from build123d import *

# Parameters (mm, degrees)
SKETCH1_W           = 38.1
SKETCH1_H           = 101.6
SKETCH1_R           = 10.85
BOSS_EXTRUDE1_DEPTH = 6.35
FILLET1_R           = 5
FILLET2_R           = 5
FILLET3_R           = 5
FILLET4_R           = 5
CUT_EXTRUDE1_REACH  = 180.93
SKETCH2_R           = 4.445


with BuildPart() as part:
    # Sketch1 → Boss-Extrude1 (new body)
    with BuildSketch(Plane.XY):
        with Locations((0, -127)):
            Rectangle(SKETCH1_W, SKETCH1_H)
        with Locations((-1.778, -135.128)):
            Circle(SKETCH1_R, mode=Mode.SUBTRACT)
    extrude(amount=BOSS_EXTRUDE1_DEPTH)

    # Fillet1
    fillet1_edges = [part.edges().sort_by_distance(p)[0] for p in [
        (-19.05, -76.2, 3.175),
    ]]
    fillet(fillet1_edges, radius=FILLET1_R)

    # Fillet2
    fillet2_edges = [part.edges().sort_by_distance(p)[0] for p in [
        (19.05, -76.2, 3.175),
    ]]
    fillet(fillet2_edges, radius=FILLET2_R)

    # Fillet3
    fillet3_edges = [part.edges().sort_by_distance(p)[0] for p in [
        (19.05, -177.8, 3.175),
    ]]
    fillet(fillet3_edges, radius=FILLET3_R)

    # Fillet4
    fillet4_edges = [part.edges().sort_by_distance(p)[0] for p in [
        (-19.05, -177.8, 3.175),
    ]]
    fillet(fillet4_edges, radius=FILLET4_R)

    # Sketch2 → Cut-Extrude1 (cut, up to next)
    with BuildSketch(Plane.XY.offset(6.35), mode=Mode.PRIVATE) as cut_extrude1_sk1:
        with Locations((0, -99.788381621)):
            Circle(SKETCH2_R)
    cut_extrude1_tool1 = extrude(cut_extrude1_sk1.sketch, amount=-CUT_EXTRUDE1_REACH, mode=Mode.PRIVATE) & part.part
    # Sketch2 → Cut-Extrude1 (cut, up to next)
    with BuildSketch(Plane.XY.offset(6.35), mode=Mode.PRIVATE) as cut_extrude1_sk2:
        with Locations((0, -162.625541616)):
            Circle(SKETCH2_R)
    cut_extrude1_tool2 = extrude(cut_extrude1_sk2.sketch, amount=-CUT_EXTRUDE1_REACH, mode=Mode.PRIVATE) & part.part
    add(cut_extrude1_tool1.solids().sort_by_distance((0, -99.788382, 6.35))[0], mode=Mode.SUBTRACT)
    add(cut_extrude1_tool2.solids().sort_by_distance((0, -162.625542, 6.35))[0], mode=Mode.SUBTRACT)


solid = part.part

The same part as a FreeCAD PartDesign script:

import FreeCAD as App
import Part
import Sketcher
Q = App.Units.Quantity


def edges_at(feature, points):
    """Names of the edges that pass closest to the given points."""
    edges = feature.Shape.Edges
    near = lambda p: min(range(len(edges)), key=lambda i: edges[i].distToShape(Part.Vertex(*p))[0])
    return sorted({f"Edge{near(p) + 1}" for p in points})

doc = App.newDocument("Part")
body = doc.addObject("PartDesign::Body", "Body")

# Sketch on XY plane
sketch1 = body.newObject("Sketcher::SketchObject", "Sketch")
sketch1.AttachmentSupport = (doc.getObject("XY_Plane"), [""])
sketch1.MapMode = "FlatFace"
sketch1.addGeometry(Part.LineSegment(App.Vector(-19, -76, 0), App.Vector(-19, -178, 0)), False)
sketch1.addGeometry(Part.LineSegment(App.Vector(-19, -178, 0), App.Vector(19, -178, 0)), False)
sketch1.addGeometry(Part.LineSegment(App.Vector(19, -178, 0), App.Vector(19, -76, 0)), False)
sketch1.addGeometry(Part.LineSegment(App.Vector(19, -76, 0), App.Vector(-19, -76, 0)), False)
sketch1.addGeometry(Part.Circle(App.Vector(-2, -135, 0), App.Vector(0, 0, 1), 11), False)
sketch1.addConstraint(Sketcher.Constraint("Coincident", 0, 2, 1, 1))
sketch1.addConstraint(Sketcher.Constraint("Coincident", 1, 2, 2, 1))
sketch1.addConstraint(Sketcher.Constraint("Coincident", 2, 2, 3, 1))
sketch1.addConstraint(Sketcher.Constraint("Coincident", 3, 2, 0, 1))
sketch1.addConstraint(Sketcher.Constraint("Vertical", 0))
sketch1.addConstraint(Sketcher.Constraint("Horizontal", 1))
sketch1.addConstraint(Sketcher.Constraint("Vertical", 2))
sketch1.addConstraint(Sketcher.Constraint("Horizontal", 3))
sketch1.addConstraint(Sketcher.Constraint("DistanceY", 0, 2, 0, 1, Q("4 in")))
sketch1.addConstraint(Sketcher.Constraint("DistanceX", 1, 1, 1, 2, Q("1.5 in")))
sketch1.addConstraint(Sketcher.Constraint("DistanceY", 0, 2, -1, 1, Q("7 in")))
sketch1.addConstraint(Sketcher.Constraint("Diameter", 4, 21.7))
sketch1.addConstraint(Sketcher.Constraint("DistanceX", 4, 3, -1, 1, Q("0.07 in")))
sketch1.addConstraint(Sketcher.Constraint("DistanceY", 4, 3, -1, 1, Q("5.32 in")))
sketch1.addConstraint(Sketcher.Constraint("DistanceX", 0, 2, -1, 1, Q("0.75 in")))
pad1 = body.newObject("PartDesign::Pad", "Pad")
pad1.Profile = sketch1
pad1.Length = Q("0.25 in")
doc.recompute()

fillet = body.newObject("PartDesign::Fillet", "Fillet")
fillet.Base = (pad1, edges_at(pad1, [(-19.05, -76.2, 3.175)]))
fillet.Radius = 5
doc.recompute()

fillet2 = body.newObject("PartDesign::Fillet", "Fillet001")
fillet2.Base = (fillet, edges_at(fillet, [(19.05, -76.2, 3.175)]))
fillet2.Radius = 5
doc.recompute()

fillet3 = body.newObject("PartDesign::Fillet", "Fillet002")
fillet3.Base = (fillet2, edges_at(fillet2, [(19.05, -177.8, 3.175)]))
fillet3.Radius = 5
doc.recompute()

fillet4 = body.newObject("PartDesign::Fillet", "Fillet003")
fillet4.Base = (fillet3, edges_at(fillet3, [(-19.05, -177.8, 3.175)]))
fillet4.Radius = 5

# Sketch on XY plane
sketch2 = body.newObject("Sketcher::SketchObject", "Sketch001")
sketch2.AttachmentSupport = (doc.getObject("XY_Plane"), [""])
sketch2.MapMode = "FlatFace"
sketch2.AttachmentOffset = App.Placement(App.Vector(0, 0, 0.25 * 25.4), App.Rotation())
sketch2.addGeometry(Part.Circle(App.Vector(0, -99.8, 0), App.Vector(0, 0, 1), 4.4), False)
sketch2.addConstraint(Sketcher.Constraint("PointOnObject", 0, 3, -2))
sketch2.addConstraint(Sketcher.Constraint("Diameter", 0, Q("0.35 in")))
sketch2.addConstraint(Sketcher.Constraint("DistanceY", 0, 3, -1, 1, 99.788382))
pocket1 = body.newObject("PartDesign::Pocket", "Pocket")
pocket1.Profile = sketch2
pocket1.Type = "UpToFirst"

# Sketch on XY plane
sketch3 = body.newObject("Sketcher::SketchObject", "Sketch002")
sketch3.AttachmentSupport = (doc.getObject("XY_Plane"), [""])
sketch3.MapMode = "FlatFace"
sketch3.AttachmentOffset = App.Placement(App.Vector(0, 0, 0.25 * 25.4), App.Rotation())
sketch3.addGeometry(Part.Circle(App.Vector(0, -162.6, 0), App.Vector(0, 0, 1), 4.4), False)
sketch3.addConstraint(Sketcher.Constraint("PointOnObject", 0, 3, -2))
sketch3.addConstraint(Sketcher.Constraint("Diameter", 0, Q("0.35 in")))
sketch3.addConstraint(Sketcher.Constraint("DistanceY", 0, 3, -1, 1, 162.625542))
pocket2 = body.newObject("PartDesign::Pocket", "Pocket001")
pocket2.Profile = sketch3
pocket2.Type = "UpToFirst"

doc.recompute()
